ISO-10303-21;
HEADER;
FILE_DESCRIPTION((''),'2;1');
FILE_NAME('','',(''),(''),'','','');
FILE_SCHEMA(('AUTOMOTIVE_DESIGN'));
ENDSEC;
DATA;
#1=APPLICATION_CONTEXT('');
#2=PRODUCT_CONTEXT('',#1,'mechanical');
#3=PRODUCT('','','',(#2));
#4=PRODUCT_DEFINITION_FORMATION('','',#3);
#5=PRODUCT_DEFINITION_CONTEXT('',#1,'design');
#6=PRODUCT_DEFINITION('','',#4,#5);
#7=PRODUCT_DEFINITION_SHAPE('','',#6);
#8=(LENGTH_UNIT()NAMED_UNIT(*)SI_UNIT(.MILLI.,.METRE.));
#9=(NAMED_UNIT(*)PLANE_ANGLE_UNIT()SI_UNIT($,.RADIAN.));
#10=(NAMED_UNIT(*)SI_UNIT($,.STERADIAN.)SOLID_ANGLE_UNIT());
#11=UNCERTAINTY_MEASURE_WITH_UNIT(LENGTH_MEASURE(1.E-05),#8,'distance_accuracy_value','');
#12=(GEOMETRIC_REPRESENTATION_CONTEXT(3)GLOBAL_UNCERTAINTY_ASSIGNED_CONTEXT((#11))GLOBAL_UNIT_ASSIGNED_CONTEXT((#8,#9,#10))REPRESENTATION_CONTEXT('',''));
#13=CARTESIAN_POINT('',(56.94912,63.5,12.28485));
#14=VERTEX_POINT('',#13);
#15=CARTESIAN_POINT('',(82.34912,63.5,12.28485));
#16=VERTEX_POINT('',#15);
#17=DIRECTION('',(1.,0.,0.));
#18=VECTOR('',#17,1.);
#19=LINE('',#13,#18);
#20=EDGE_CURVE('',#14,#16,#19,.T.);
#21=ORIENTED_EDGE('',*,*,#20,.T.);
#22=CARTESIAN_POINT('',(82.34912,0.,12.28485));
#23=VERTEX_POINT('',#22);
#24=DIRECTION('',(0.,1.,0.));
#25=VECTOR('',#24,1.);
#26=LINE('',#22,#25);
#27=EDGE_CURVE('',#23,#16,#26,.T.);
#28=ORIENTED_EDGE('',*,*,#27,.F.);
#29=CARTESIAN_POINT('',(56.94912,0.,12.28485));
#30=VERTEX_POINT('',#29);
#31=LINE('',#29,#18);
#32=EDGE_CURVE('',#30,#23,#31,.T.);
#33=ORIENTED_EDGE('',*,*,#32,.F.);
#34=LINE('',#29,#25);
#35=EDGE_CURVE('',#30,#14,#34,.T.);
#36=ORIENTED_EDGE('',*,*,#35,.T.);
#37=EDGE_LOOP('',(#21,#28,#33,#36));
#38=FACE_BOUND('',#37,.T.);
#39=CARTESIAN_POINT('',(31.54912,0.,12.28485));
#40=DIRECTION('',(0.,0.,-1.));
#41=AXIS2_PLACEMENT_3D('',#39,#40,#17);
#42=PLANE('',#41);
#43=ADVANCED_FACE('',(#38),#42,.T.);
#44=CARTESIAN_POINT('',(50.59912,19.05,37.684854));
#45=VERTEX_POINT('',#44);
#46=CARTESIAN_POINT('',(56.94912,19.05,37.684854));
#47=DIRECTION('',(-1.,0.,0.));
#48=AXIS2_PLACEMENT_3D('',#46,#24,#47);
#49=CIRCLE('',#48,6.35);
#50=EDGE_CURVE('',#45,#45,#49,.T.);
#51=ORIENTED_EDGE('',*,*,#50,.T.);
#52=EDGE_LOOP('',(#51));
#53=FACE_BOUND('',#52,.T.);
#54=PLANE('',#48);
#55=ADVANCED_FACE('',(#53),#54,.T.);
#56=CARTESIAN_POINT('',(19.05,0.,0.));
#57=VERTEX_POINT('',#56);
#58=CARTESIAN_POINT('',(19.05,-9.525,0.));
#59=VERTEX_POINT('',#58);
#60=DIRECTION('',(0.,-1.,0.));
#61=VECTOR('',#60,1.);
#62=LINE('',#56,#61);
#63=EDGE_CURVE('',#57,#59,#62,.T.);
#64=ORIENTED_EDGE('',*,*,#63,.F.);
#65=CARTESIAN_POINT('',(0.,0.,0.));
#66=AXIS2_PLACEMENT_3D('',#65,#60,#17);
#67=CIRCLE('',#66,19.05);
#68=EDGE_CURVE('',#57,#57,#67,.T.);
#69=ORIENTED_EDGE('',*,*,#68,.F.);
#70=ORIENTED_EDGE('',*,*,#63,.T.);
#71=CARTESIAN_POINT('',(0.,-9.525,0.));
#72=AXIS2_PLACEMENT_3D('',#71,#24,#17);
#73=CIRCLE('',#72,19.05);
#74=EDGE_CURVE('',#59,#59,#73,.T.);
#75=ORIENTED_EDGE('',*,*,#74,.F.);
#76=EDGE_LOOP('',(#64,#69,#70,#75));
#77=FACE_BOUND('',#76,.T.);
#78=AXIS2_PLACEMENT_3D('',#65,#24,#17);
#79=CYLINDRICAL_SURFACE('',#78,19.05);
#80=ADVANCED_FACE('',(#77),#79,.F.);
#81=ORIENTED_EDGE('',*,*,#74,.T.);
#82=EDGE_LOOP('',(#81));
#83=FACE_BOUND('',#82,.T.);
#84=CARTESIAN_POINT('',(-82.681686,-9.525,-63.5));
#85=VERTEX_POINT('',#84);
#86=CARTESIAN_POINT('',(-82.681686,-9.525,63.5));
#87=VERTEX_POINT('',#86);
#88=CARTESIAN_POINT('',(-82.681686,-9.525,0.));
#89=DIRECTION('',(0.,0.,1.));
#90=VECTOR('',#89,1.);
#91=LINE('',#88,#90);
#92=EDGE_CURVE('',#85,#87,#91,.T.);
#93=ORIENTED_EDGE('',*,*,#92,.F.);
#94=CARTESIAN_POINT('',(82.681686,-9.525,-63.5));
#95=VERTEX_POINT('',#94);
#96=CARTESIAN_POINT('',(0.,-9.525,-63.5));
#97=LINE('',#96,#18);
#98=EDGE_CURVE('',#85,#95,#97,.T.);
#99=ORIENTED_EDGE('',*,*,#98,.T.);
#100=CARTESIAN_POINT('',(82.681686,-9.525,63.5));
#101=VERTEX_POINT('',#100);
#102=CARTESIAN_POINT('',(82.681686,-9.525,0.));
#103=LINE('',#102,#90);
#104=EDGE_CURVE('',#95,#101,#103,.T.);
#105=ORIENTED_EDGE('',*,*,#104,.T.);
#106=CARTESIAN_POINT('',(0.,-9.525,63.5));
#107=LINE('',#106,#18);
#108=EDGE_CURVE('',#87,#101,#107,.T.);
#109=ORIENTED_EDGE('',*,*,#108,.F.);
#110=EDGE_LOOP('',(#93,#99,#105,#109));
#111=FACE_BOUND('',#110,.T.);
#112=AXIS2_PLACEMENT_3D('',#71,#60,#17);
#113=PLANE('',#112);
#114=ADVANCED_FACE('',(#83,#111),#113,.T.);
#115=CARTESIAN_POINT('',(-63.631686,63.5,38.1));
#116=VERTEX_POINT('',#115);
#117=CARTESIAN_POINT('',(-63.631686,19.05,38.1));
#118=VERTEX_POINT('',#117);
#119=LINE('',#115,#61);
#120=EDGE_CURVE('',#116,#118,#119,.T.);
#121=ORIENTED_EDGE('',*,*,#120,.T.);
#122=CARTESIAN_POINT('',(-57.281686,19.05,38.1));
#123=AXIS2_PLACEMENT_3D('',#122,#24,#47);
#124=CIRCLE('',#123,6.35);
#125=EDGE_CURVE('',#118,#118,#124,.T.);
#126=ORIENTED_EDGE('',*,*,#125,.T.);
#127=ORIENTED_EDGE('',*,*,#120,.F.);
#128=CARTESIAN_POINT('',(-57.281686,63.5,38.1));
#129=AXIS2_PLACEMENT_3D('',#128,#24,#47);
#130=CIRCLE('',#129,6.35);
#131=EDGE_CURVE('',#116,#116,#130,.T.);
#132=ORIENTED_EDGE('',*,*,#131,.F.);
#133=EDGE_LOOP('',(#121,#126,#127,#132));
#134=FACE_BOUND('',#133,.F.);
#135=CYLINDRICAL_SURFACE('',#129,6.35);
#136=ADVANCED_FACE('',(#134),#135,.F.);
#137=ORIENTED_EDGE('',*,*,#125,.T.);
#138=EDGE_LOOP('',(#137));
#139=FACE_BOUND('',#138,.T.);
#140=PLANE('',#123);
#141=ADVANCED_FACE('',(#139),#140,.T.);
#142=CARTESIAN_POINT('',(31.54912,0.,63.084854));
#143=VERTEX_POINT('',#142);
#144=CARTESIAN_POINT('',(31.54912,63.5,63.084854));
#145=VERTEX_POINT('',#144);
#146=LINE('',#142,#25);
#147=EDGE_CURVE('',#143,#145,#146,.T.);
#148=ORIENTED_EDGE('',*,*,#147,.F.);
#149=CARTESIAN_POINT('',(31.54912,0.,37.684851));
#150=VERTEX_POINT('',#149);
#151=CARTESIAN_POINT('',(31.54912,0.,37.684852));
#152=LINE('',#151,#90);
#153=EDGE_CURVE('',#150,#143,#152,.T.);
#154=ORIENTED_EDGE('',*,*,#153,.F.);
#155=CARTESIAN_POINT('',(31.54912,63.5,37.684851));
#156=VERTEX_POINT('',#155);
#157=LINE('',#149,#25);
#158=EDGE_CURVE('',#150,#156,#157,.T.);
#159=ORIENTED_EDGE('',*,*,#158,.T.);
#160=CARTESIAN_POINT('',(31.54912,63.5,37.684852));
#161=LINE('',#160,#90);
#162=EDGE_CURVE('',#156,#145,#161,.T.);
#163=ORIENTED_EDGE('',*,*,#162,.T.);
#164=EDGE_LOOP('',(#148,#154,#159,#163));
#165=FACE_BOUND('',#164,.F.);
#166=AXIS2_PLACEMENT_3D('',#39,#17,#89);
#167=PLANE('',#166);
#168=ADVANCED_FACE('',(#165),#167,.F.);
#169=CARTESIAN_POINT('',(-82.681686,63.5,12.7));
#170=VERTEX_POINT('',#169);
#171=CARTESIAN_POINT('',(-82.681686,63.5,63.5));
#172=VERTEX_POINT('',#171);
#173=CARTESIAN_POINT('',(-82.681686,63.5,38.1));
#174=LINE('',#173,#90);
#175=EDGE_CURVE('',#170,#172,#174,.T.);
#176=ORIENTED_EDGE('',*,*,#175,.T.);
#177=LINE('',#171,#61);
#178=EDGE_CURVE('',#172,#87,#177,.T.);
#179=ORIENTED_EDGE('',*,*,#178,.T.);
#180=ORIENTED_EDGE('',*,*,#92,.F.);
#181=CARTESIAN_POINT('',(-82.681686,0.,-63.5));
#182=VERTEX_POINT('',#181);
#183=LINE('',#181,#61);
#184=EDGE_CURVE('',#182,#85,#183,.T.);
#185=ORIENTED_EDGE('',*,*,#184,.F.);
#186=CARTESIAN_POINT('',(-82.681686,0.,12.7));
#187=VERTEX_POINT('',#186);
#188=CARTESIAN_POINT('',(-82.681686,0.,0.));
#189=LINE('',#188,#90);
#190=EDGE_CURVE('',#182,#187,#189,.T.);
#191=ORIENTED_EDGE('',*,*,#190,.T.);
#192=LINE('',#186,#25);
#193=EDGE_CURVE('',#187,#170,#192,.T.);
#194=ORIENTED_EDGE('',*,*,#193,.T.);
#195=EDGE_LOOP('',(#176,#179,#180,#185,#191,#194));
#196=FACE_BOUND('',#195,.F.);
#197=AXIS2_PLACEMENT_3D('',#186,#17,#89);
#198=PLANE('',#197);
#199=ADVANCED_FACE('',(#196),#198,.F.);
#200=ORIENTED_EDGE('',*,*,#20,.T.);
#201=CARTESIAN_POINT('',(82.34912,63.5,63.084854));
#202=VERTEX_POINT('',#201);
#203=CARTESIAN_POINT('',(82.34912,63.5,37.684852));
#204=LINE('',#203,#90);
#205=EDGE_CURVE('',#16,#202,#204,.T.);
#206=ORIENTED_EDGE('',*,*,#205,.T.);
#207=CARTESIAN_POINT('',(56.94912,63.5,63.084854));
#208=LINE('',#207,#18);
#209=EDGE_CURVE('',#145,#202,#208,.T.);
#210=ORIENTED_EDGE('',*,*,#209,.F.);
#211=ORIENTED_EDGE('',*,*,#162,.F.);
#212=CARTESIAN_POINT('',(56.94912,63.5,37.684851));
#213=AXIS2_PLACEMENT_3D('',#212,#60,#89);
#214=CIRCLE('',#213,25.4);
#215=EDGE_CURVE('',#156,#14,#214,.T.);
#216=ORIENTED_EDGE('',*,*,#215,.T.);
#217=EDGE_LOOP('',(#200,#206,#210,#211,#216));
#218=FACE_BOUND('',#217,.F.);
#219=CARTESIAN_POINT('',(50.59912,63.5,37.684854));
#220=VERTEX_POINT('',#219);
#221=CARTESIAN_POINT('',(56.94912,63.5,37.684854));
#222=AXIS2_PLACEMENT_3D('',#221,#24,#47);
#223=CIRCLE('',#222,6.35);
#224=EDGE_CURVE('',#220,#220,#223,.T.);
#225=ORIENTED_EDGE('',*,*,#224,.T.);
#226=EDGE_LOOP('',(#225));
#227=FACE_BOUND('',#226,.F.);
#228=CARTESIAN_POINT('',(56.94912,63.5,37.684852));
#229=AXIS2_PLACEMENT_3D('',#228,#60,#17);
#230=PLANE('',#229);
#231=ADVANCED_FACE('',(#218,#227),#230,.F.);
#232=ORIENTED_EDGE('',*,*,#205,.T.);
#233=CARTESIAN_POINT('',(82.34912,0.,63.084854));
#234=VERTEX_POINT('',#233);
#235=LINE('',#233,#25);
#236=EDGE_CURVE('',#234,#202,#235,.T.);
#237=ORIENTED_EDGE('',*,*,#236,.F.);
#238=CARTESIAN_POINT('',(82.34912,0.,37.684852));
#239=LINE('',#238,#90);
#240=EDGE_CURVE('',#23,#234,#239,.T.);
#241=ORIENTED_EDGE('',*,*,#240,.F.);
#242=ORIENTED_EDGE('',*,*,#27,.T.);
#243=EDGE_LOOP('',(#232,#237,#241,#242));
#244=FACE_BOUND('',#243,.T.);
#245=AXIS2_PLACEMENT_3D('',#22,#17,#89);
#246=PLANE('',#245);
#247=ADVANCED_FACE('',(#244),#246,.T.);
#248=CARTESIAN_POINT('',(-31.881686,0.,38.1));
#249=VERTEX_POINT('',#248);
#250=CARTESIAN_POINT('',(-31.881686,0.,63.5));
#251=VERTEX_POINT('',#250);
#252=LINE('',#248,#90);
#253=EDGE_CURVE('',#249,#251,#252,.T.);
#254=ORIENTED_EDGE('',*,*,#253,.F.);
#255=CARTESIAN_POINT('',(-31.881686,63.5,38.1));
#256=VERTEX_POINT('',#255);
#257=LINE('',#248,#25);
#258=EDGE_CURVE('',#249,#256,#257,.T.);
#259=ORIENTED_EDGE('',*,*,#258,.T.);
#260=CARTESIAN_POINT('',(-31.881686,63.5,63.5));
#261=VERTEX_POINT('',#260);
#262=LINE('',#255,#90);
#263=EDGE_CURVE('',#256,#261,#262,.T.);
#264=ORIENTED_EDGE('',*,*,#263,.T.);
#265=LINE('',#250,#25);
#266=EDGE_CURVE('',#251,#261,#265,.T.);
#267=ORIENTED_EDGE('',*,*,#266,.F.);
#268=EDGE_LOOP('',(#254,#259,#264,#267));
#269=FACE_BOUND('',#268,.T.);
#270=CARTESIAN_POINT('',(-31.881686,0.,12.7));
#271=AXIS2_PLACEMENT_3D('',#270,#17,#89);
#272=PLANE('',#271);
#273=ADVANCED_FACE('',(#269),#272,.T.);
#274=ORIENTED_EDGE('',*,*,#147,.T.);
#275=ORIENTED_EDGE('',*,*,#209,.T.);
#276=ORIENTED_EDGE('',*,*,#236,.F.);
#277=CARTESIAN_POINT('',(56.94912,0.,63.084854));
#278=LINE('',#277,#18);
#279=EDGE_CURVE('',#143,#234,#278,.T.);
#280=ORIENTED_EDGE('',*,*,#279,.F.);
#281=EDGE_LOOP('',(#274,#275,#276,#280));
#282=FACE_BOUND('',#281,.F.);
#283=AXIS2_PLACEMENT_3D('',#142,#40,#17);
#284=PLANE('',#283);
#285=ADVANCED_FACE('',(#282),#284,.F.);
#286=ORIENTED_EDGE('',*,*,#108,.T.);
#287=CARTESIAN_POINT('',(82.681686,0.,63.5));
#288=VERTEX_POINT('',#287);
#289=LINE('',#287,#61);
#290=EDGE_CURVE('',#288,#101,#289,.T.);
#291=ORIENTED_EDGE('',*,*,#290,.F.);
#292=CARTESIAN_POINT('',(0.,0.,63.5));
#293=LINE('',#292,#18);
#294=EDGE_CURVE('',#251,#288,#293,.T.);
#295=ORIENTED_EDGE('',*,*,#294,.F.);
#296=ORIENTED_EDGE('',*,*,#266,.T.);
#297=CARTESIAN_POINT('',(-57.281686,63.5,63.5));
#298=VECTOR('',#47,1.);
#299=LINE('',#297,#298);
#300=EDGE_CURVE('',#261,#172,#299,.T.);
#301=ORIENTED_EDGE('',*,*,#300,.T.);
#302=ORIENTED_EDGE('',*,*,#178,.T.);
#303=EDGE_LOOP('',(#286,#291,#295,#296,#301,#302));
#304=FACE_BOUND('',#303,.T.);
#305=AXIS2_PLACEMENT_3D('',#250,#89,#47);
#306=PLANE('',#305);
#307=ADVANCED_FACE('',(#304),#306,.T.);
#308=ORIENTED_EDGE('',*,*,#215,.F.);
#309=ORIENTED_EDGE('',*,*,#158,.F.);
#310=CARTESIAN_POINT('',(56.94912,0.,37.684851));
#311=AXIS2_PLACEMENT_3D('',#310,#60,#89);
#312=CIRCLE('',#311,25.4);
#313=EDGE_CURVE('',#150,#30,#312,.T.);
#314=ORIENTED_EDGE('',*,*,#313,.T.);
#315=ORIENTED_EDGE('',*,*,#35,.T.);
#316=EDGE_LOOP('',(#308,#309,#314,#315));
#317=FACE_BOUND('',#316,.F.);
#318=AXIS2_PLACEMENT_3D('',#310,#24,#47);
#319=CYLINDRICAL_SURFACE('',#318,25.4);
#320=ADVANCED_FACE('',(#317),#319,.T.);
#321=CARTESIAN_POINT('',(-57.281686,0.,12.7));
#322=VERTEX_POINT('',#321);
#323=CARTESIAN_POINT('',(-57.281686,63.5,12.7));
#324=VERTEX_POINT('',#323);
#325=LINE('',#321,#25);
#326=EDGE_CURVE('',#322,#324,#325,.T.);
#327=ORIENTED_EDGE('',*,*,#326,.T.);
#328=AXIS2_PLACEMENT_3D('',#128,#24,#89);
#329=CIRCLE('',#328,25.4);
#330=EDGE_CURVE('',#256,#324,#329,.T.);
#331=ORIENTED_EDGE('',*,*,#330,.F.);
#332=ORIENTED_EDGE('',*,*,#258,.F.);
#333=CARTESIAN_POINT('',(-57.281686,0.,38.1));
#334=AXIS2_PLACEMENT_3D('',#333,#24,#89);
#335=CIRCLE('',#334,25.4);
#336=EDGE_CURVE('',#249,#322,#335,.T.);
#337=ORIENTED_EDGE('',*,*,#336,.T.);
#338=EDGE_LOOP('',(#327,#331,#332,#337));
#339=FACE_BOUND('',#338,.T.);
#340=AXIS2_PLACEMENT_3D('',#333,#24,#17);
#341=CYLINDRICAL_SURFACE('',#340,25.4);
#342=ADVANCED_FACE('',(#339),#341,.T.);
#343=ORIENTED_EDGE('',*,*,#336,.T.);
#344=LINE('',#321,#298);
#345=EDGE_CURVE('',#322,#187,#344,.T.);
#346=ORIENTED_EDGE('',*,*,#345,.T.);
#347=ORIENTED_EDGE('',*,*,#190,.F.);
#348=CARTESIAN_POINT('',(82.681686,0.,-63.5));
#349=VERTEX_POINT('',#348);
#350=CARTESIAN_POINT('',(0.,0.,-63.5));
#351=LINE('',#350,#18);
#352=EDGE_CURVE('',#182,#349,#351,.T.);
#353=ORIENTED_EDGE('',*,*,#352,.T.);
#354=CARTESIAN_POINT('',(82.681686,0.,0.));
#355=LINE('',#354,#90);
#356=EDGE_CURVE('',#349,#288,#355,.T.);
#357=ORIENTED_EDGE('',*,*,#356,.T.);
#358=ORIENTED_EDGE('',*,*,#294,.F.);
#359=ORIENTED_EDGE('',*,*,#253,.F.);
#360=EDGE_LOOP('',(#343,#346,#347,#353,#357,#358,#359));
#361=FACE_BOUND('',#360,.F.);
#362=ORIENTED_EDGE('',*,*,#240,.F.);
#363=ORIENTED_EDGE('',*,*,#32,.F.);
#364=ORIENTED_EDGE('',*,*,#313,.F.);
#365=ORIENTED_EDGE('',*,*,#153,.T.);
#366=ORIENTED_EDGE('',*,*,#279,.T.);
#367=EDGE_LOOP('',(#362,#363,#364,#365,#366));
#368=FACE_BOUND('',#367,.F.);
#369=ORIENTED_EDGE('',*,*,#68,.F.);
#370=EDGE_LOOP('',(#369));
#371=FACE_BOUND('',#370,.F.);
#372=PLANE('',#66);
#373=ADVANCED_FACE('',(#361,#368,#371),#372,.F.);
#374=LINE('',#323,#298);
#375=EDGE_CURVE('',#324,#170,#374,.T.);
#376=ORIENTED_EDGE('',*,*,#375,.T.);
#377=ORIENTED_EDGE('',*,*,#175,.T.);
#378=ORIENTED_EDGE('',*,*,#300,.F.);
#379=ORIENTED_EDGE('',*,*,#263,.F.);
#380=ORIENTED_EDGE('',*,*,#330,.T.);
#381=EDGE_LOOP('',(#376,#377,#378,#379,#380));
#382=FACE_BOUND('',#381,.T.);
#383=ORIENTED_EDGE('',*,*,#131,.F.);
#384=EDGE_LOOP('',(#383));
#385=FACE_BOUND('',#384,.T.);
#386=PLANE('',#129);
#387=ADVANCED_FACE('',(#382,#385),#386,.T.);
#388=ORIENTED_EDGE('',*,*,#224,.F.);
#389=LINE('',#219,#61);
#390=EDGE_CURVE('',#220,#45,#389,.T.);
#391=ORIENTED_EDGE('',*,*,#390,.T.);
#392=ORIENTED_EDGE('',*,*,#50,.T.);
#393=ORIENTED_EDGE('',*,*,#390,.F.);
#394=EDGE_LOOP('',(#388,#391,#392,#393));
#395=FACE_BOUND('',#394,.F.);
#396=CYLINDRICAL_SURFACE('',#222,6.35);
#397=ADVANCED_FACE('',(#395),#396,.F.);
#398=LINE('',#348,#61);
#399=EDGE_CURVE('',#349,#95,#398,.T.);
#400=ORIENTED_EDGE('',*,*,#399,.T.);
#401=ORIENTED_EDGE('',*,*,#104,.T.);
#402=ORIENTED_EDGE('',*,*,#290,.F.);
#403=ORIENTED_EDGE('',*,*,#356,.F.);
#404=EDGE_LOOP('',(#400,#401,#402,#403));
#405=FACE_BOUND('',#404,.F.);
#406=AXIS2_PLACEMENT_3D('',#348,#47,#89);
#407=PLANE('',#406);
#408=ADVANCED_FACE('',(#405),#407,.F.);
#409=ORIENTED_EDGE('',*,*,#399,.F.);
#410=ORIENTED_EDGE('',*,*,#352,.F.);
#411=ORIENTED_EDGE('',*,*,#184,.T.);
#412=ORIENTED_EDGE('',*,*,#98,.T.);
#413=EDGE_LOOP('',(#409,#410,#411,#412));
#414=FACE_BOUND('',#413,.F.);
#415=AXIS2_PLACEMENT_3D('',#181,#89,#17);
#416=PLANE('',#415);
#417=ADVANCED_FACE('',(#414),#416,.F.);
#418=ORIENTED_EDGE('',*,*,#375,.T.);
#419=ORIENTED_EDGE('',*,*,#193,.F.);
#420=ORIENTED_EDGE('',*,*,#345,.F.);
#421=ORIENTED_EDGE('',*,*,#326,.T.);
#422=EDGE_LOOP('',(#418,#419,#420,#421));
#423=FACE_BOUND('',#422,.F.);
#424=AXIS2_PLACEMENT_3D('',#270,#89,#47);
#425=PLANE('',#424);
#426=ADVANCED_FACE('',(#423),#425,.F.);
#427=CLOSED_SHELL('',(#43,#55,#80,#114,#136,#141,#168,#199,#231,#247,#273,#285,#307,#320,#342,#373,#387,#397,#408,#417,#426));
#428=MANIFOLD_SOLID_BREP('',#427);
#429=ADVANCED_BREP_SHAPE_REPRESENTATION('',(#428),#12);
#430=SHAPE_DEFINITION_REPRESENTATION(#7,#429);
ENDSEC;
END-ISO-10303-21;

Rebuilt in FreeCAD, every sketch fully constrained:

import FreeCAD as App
import Part
import Sketcher

V = App.Vector
Q = App.Units.Quantity


def edges_at(feature, points):
    """Names of the edges that pass closest to the given points."""
    edges = feature.Shape.Edges
    near = lambda p: min(range(len(edges)), key=lambda i: edges[i].distToShape(Part.Vertex(*p))[0])
    return sorted({f"Edge{near(p) + 1}" for p in points})


def add_polygon(sketch, points):
    """Adds a closed chain of lines whose ends are joined by coincident constraints."""
    first, n = sketch.GeometryCount, len(points)
    for a, b in zip(points, points[1:] + points[:1]):
        sketch.addGeometry(Part.LineSegment(App.Vector(*a, 0), App.Vector(*b, 0)), False)
    for i in range(n):
        sketch.addConstraint(Sketcher.Constraint("Coincident", first + i, 2, first + (i + 1) % n, 1))

doc = App.newDocument("Part")
body = doc.addObject("PartDesign::Body", "Body")

# Sketch on XZ plane
sketch1 = body.newObject("Sketcher::SketchObject", "Sketch")
sketch1.AttachmentSupport = (doc.getObject("XZ_Plane"), [""])
sketch1.MapMode = "FlatFace"
add_polygon(sketch1, [(-83, 64), (-83, -64), (83, -64), (83, 64)])  # lines 0-3
sketch1.addConstraint(Sketcher.Constraint("Vertical", 0))
sketch1.addConstraint(Sketcher.Constraint("Horizontal", 1))
sketch1.addConstraint(Sketcher.Constraint("Vertical", 2))
sketch1.addConstraint(Sketcher.Constraint("Horizontal", 3))
sketch1.addConstraint(Sketcher.Constraint("Symmetric", 0, 2, 2, 2, -1, 1))
sketch1.addConstraint(Sketcher.Constraint("DistanceY", 0, 2, 0, 1, Q("5 in")))
sketch1.addConstraint(Sketcher.Constraint("DistanceX", 1, 1, 1, 2, 165.363372))
pad1 = body.newObject("PartDesign::Pad", "Pad")
pad1.Profile = sketch1
pad1.Length = Q("0.375 in")

# Sketch on XZ plane
sketch2 = body.newObject("Sketcher::SketchObject", "Sketch001")
sketch2.AttachmentSupport = (doc.getObject("XZ_Plane"), [""])
sketch2.MapMode = "FlatFace"
add_polygon(sketch2, [(32, 63), (32, 12), (82, 12), (82, 63)])  # lines 0-3
sketch2.addConstraint(Sketcher.Constraint("Vertical", 0))
sketch2.addConstraint(Sketcher.Constraint("Horizontal", 1))
sketch2.addConstraint(Sketcher.Constraint("Vertical", 2))
sketch2.addConstraint(Sketcher.Constraint("Horizontal", 3))
sketch2.addConstraint(Sketcher.Constraint("DistanceX", 1, 1, 1, 2, Q("2 in")))
sketch2.addConstraint(Sketcher.Constraint("DistanceY", 0, 2, 0, 1, Q("2.0000001 in")))
sketch2.addConstraint(Sketcher.Constraint("DistanceX", -1, 1, 0, 2, 31.54912))
sketch2.addConstraint(Sketcher.Constraint("DistanceY", -1, 1, 0, 2, 12.28485))
pad2 = body.newObject("PartDesign::Pad", "Pad001")
pad2.Profile = sketch2
pad2.Length = Q("2.5 in")
pad2.Reversed = True

# Sketch on XZ plane
sketch3 = body.newObject("Sketcher::SketchObject", "Sketch002")
sketch3.AttachmentSupport = (doc.getObject("XZ_Plane"), [""])
sketch3.MapMode = "FlatFace"
add_polygon(sketch3, [(-32, 64), (-32, 13), (-83, 13), (-83, 64)])  # lines 0-3
sketch3.addConstraint(Sketcher.Constraint("Vertical", 0))
sketch3.addConstraint(Sketcher.Constraint("Horizontal", 1))
sketch3.addConstraint(Sketcher.Constraint("Vertical", 2))
sketch3.addConstraint(Sketcher.Constraint("Horizontal", 3))
sketch3.addConstraint(Sketcher.Constraint("Equal", 3, 0))
sketch3.addConstraint(Sketcher.Constraint("DistanceX", 1, 2, 1, 1, Q("2 in")))
sketch3.addConstraint(Sketcher.Constraint("DistanceY", -1, 1, 0, 2, Q("0.5 in")))
sketch3.addConstraint(Sketcher.Constraint("DistanceX", 0, 2, -1, 1, 31.881686))
pad3 = body.newObject("PartDesign::Pad", "Pad002")
pad3.Profile = sketch3
pad3.Length = Q("2.5 in")
pad3.Reversed = True
doc.recompute()

fillet = body.newObject("PartDesign::Fillet", "Fillet")
fillet.Base = (pad3, edges_at(pad3, [(31.549, 31.75, 12.285), (-31.882, 31.75, 12.7)]))
fillet.Radius = Q("1 in")

# Sketch on XZ plane
sketch4 = body.newObject("Sketcher::SketchObject", "Sketch003")
sketch4.AttachmentSupport = (doc.getObject("XZ_Plane"), [""])
sketch4.MapMode = "FlatFace"
sketch4.addGeometry(Part.Circle(V(0, 0, 0), V(0, 0, 1), 19), False)
sketch4.addConstraint(Sketcher.Constraint("Coincident", 0, 3, -1, 1))
sketch4.addConstraint(Sketcher.Constraint("Diameter", 0, Q("1.5 in")))
pocket1 = body.newObject("PartDesign::Pocket", "Pocket")
pocket1.Profile = sketch4
pocket1.Type = "ThroughAll"

# Sketch on XZ plane
sketch5 = body.newObject("Sketcher::SketchObject", "Sketch004")
sketch5.AttachmentSupport = (doc.getObject("XZ_Plane"), [""])
sketch5.MapMode = "FlatFace"
sketch5.addGeometry(Part.Circle(V(0, 0, 0), V(0, 0, 1), 19), False)
sketch5.addConstraint(Sketcher.Constraint("Coincident", 0, 3, -1, 1))
sketch5.addConstraint(Sketcher.Constraint("Diameter", 0, Q("1.5 in")))
pocket2 = body.newObject("PartDesign::Pocket", "Pocket001")
pocket2.Profile = sketch5
pocket2.Type = "ThroughAll"

# Sketch on XZ plane
sketch6 = body.newObject("Sketcher::SketchObject", "Sketch005")
sketch6.AttachmentSupport = (doc.getObject("XZ_Plane"), [""])
sketch6.MapMode = "FlatFace"
sketch6.addGeometry(Part.Circle(V(0, 0, 0), V(0, 0, 1), 19), False)
sketch6.addConstraint(Sketcher.Constraint("Coincident", 0, 3, -1, 1))
sketch6.addConstraint(Sketcher.Constraint("Diameter", 0, Q("1.5 in")))
pocket3 = body.newObject("PartDesign::Pocket", "Pocket002")
pocket3.Profile = sketch6
pocket3.Type = "ThroughAll"
pocket3.Reversed = True

# Sketch on XZ plane
sketch7 = body.newObject("Sketcher::SketchObject", "Sketch006")
sketch7.AttachmentSupport = (doc.getObject("XZ_Plane"), [""])
sketch7.MapMode = "FlatFace"
sketch7.AttachmentOffset = App.Placement(V(0, 0, -2.5 * 25.4), App.Rotation())
sketch7.addGeometry(Part.Circle(V(57, 38, 0), V(0, 0, 1), 6), False)
sketch7.addGeometry(Part.Circle(V(-57, 38, 0), V(0, 0, 1), 6), False)
sketch7.addConstraint(Sketcher.Constraint("Equal", 0, 1))
sketch7.addConstraint(Sketcher.Constraint("Diameter", 0, Q("0.5 in")))
sketch7.addConstraint(Sketcher.Constraint("DistanceY", -1, 1, 1, 3, Q("1.5 in")))
sketch7.addConstraint(Sketcher.Constraint("DistanceX", -1, 1, 0, 3, 56.94912))
sketch7.addConstraint(Sketcher.Constraint("DistanceY", -1, 1, 0, 3, 37.684854))
sketch7.addConstraint(Sketcher.Constraint("DistanceX", 1, 3, -1, 1, 57.281686))
pocket4 = body.newObject("PartDesign::Pocket", "Pocket003")
pocket4.Profile = sketch7
pocket4.Length = Q("1.75 in")
pocket4.Reversed = True

doc.recompute()
